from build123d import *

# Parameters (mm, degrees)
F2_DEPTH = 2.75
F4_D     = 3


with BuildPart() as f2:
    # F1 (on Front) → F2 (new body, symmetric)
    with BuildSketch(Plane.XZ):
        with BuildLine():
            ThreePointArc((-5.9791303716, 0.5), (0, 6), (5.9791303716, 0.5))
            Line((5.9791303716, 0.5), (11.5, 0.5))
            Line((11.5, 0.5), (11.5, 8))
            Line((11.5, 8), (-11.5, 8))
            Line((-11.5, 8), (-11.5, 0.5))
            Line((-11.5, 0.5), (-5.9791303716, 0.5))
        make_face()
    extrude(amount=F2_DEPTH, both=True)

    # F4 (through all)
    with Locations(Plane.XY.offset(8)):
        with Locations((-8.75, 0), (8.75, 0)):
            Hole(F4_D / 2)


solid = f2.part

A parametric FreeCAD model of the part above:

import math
import FreeCAD as App
import Part
import Sketcher

V = App.Vector
Q = App.Units.Quantity

doc = App.newDocument("Part")
body = doc.addObject("PartDesign::Body", "Body")

# Sketch on XZ plane
sketch1 = body.newObject("Sketcher::SketchObject", "Sketch")
sketch1.AttachmentSupport = (doc.getObject("XZ_Plane"), [""])
sketch1.MapMode = "FlatFace"
sketch1.addGeometry([
    Part.ArcOfCircle(Part.Circle(V(0, 0, 0), V(0, 0, 1), 6), math.radians(5), math.radians(175)),  # 0
    Part.LineSegment(V(6, 0, 0), V(12, 0, 0)),  # 1
    Part.LineSegment(V(12, 0, 0), V(12, 8, 0)),  # 2
    Part.LineSegment(V(12, 8, 0), V(-12, 8, 0)),  # 3
    Part.LineSegment(V(-12, 8, 0), V(-12, 0, 0)),  # 4
    Part.LineSegment(V(-12, 0, 0), V(-6, 0, 0)),  # 5
], False)
sketch1.addConstraint([
    Sketcher.Constraint("Coincident", 0, 1, 1, 1),
    Sketcher.Constraint("Coincident", 1, 2, 2, 1),
    Sketcher.Constraint("Coincident", 2, 2, 3, 1),
    Sketcher.Constraint("Coincident", 3, 2, 4, 1),
    Sketcher.Constraint("Coincident", 4, 2, 5, 1),
    Sketcher.Constraint("Coincident", 5, 2, 0, 2),
    Sketcher.Constraint("Horizontal", 1),
    Sketcher.Constraint("Vertical", 2),
    Sketcher.Constraint("Horizontal", 3),
    Sketcher.Constraint("Vertical", 4),
    Sketcher.Constraint("Horizontal", 5),
    Sketcher.Constraint("Coincident", 0, 3, -1, 1),
    Sketcher.Constraint("Symmetric", 1, 2, 4, 2, -2),
    Sketcher.Constraint("Radius", 0, Q("6 mm")),
    Sketcher.Constraint("DistanceX", 3, 2, 3, 1, Q("23 mm")),
    Sketcher.Constraint("DistanceY", 2, 1, 2, 2, Q("7.5 mm")),
    Sketcher.Constraint("DistanceY", -1, 1, 2, 2, Q("8 mm")),
])
pad1 = body.newObject("PartDesign::Pad", "Pad")
pad1.Profile = sketch1
pad1.Length = 5.5
pad1.Midplane = True

# Sketch on XY plane
sketch2 = body.newObject("Sketcher::SketchObject", "Sketch001")
sketch2.AttachmentSupport = (doc.getObject("XY_Plane"), [""])
sketch2.MapMode = "FlatFace"
sketch2.AttachmentOffset = App.Placement(V(0, 0, 8), App.Rotation())
sketch2.addGeometry([
    Part.Circle(V(-8.8, 0, 0), V(0, 0, 1), 1.5),
    Part.Circle(V(8.8, 0, 0), V(0, 0, 1), 1.5),
], False)
sketch2.addConstraint([
    Sketcher.Constraint("Equal", 0, 1),
    Sketcher.Constraint("Symmetric", 0, 3, 1, 3, -1, 1),
    Sketcher.Constraint("PointOnObject", 0, 3, -1),
    Sketcher.Constraint("Diameter", 0, Q("3 mm")),
    Sketcher.Constraint("DistanceX", 0, 3, 1, 3, Q("17.5 mm")),
])
doc.recompute()
hole = body.newObject("PartDesign::Hole", "Hole")
hole.Profile = sketch2
hole.ThreadType = "None"
hole.Diameter = 3
hole.DepthType = "ThroughAll"

doc.recompute()
